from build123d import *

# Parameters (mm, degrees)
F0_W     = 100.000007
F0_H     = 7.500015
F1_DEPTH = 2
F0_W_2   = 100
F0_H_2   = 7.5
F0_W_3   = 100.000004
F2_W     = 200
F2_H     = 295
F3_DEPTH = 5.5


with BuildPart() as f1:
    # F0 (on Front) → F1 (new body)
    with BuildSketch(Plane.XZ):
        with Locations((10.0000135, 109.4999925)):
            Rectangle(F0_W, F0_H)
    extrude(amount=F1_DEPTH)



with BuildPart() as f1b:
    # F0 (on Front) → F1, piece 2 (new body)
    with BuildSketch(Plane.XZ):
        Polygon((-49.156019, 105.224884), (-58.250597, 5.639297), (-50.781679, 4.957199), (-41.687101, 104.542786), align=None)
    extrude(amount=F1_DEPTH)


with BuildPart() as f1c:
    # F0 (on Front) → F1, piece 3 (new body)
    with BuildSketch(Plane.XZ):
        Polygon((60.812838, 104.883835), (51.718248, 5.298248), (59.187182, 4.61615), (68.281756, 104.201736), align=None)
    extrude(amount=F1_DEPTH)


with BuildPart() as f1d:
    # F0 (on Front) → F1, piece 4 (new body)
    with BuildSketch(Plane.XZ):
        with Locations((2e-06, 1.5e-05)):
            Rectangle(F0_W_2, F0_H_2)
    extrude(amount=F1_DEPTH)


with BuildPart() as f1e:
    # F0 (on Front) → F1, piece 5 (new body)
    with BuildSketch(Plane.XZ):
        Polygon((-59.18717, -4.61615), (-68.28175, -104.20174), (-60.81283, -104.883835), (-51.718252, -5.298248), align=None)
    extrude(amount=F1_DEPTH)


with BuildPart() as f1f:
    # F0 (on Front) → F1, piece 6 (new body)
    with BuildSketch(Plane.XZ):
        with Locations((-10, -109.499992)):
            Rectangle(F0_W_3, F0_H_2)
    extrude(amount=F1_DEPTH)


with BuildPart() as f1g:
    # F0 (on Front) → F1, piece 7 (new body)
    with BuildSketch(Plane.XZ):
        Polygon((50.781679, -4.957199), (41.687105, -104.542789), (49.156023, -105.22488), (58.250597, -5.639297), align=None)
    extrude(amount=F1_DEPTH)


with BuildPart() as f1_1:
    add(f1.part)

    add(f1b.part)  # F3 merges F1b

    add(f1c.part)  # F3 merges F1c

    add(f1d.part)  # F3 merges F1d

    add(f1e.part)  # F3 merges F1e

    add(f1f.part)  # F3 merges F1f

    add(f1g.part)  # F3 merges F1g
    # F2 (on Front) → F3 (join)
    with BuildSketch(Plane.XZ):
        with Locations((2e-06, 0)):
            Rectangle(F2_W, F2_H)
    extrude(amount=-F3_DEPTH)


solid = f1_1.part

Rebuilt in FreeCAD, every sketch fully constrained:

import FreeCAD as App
import Part
import Sketcher
from FreeCAD import Vector
Q = App.Units.Quantity

doc = App.newDocument("Part")
body = doc.addObject("PartDesign::Body", "Body")

sketch1 = doc.addObject("Sketcher::SketchObject", "Sketch")
body.addObject(sketch1)
sketch1.AttachmentSupport = (doc.XZ_Plane, [""])
sketch1.MapMode = "FlatFace"
sketch1.addGeometry([
    Part.LineSegment(Vector(-40, 113, 0), Vector(-40, 106, 0)),
    Part.LineSegment(Vector(-40, 106, 0), Vector(60, 106, 0)),
    Part.LineSegment(Vector(60, 106, 0), Vector(60, 113, 0)),
    Part.LineSegment(Vector(60, 113, 0), Vector(-40, 113, 0)),
], False)
sketch1.addConstraint([
    Sketcher.Constraint("Coincident", 0, 2, 1, 1),
    Sketcher.Constraint("Coincident", 1, 2, 2, 1),
    Sketcher.Constraint("Coincident", 2, 2, 3, 1),
    Sketcher.Constraint("Coincident", 3, 2, 0, 1),
    Sketcher.Constraint("Vertical", 0),
    Sketcher.Constraint("Horizontal", 1),
    Sketcher.Constraint("Vertical", 2),
    Sketcher.Constraint("Horizontal", 3),
    Sketcher.Constraint("DistanceY", -1, 1, 2, 2, Q("113.25 mm")),
    Sketcher.Constraint("DistanceX", 1, 1, 1, 2, Q("100.000007 mm")),
    Sketcher.Constraint("DistanceY", 0, 2, 0, 1, Q("7.500015 mm")),
    Sketcher.Constraint("DistanceX", 0, 2, -1, 1, Q("39.99999 mm")),
])
pad1 = doc.addObject("PartDesign::Pad", "Pad")
body.addObject(pad1)
pad1.Profile = sketch1
pad1.Length = 2
body2 = doc.addObject("PartDesign::Body", "Body001")

sketch2 = doc.addObject("Sketcher::SketchObject", "Sketch001")
body2.addObject(sketch2)
sketch2.AttachmentSupport = (doc.getObject("XZ_Plane001"), [""])
sketch2.MapMode = "FlatFace"
sketch2.addGeometry([
    Part.LineSegment(Vector(-49, 105, 0), Vector(-58, 6, 0)),
    Part.LineSegment(Vector(-58, 6, 0), Vector(-51, 5, 0)),
    Part.LineSegment(Vector(-51, 5, 0), Vector(-42, 105, 0)),
    Part.LineSegment(Vector(-42, 105, 0), Vector(-49, 105, 0)),
], False)
sketch2.addConstraint([
    Sketcher.Constraint("Coincident", 0, 2, 1, 1),
    Sketcher.Constraint("Coincident", 1, 2, 2, 1),
    Sketcher.Constraint("Coincident", 2, 2, 3, 1),
    Sketcher.Constraint("Coincident", 3, 2, 0, 1),
    Sketcher.Constraint("Perpendicular", 0, 1),
    Sketcher.Constraint("Perpendicular", 1, 2),
    Sketcher.Constraint("Perpendicular", 2, 3),
    Sketcher.Constraint("Distance", 1, Q("7.5 mm")),
    Sketcher.Constraint("DistanceY", -1, 1, 1, 2, Q("4.957199 mm")),
    Sketcher.Constraint("DistanceX", 2, 2, -1, 1, Q("41.687101 mm")),
    Sketcher.Constraint("DistanceX", 1, 2, -1, 1, Q("50.781679 mm")),
    Sketcher.Constraint("DistanceY", 0, 2, 2, 2, Q("98.903489 mm")),
])
pad2 = doc.addObject("PartDesign::Pad", "Pad001")
body2.addObject(pad2)
pad2.Profile = sketch2
pad2.Length = 2
body3 = doc.addObject("PartDesign::Body", "Body002")

sketch3 = doc.addObject("Sketcher::SketchObject", "Sketch002")
body3.addObject(sketch3)
sketch3.AttachmentSupport = (doc.getObject("XZ_Plane002"), [""])
sketch3.MapMode = "FlatFace"
sketch3.addGeometry([
    Part.LineSegment(Vector(60.812838, 104.883835, 0), Vector(51.718248, 5.298248, 0)),
    Part.LineSegment(Vector(51.718248, 5.298248, 0), Vector(59.187182, 4.61615, 0)),
    Part.LineSegment(Vector(59.187182, 4.61615, 0), Vector(68.281756, 104.201736, 0)),
    Part.LineSegment(Vector(68.281756, 104.201736, 0), Vector(60.812838, 104.883835, 0)),
], False)
sketch3.addConstraint([
    Sketcher.Constraint("Coincident", 0, 2, 1, 1),
    Sketcher.Constraint("Coincident", 1, 2, 2, 1),
    Sketcher.Constraint("Coincident", 2, 2, 3, 1),
    Sketcher.Constraint("Coincident", 3, 2, 0, 1),
    Sketcher.Constraint("Distance", 2, Q("100.000001 mm")),
    Sketcher.Constraint("Distance", 3, Q("7.5 mm")),
    Sketcher.Constraint("DistanceY", 2, 2, 3, 2, Q("0.682099 mm")),
    Sketcher.Constraint("DistanceX", -1, 1, 0, 2, Q("51.718248 mm")),
    Sketcher.Constraint("DistanceY", -1, 1, 1, 2, Q("4.61615 mm")),
    Sketcher.Constraint("DistanceX", 0, 2, 3, 2, Q("9.09459 mm")),
    Sketcher.Constraint("Distance", 0, Q("100.000004 mm")),
    Sketcher.Constraint("Distance", 1, Q("7.500016 mm")),
])
pad3 = doc.addObject("PartDesign::Pad", "Pad002")
body3.addObject(pad3)
pad3.Profile = sketch3
pad3.Length = 2
body4 = doc.addObject("PartDesign::Body", "Body003")

sketch4 = doc.addObject("Sketcher::SketchObject", "Sketch003")
body4.addObject(sketch4)
sketch4.AttachmentSupport = (doc.getObject("XZ_Plane003"), [""])
sketch4.MapMode = "FlatFace"
sketch4.addGeometry([
    Part.LineSegment(Vector(-50, 4, 0), Vector(-50, -4, 0)),
    Part.LineSegment(Vector(-50, -4, 0), Vector(50, -4, 0)),
    Part.LineSegment(Vector(50, -4, 0), Vector(50, 4, 0)),
    Part.LineSegment(Vector(50, 4, 0), Vector(-50, 4, 0)),
], False)
sketch4.addConstraint([
    Sketcher.Constraint("Coincident", 0, 2, 1, 1),
    Sketcher.Constraint("Coincident", 1, 2, 2, 1),
    Sketcher.Constraint("Coincident", 2, 2, 3, 1),
    Sketcher.Constraint("Coincident", 3, 2, 0, 1),
    Sketcher.Constraint("Vertical", 0),
    Sketcher.Constraint("Horizontal", 1),
    Sketcher.Constraint("Vertical", 2),
    Sketcher.Constraint("Horizontal", 3),
    Sketcher.Constraint("DistanceX", 1, 1, 1, 2, Q("100 mm")),
    Sketcher.Constraint("DistanceY", 0, 2, 0, 1, Q("7.5 mm")),
    Sketcher.Constraint("DistanceX", 0, 2, -1, 1, Q("49.999998 mm")),
    Sketcher.Constraint("DistanceY", 0, 2, -1, 1, Q("3.749985 mm")),
])
pad4 = doc.addObject("PartDesign::Pad", "Pad003")
body4.addObject(pad4)
pad4.Profile = sketch4
pad4.Length = 2
body5 = doc.addObject("PartDesign::Body", "Body004")

sketch5 = doc.addObject("Sketcher::SketchObject", "Sketch004")
body5.addObject(sketch5)
sketch5.AttachmentSupport = (doc.getObject("XZ_Plane004"), [""])
sketch5.MapMode = "FlatFace"
sketch5.addGeometry([
    Part.LineSegment(Vector(-59, -5, 0), Vector(-68, -104, 0)),
    Part.LineSegment(Vector(-68, -104, 0), Vector(-61, -105, 0)),
    Part.LineSegment(Vector(-61, -105, 0), Vector(-52, -5, 0)),
    Part.LineSegment(Vector(-52, -5, 0), Vector(-59, -5, 0)),
], False)
sketch5.addConstraint([
    Sketcher.Constraint("Coincident", 0, 2, 1, 1),
    Sketcher.Constraint("Coincident", 1, 2, 2, 1),
    Sketcher.Constraint("Coincident", 2, 2, 3, 1),
    Sketcher.Constraint("Coincident", 3, 2, 0, 1),
    Sketcher.Constraint("Perpendicular", 0, 1),
    Sketcher.Constraint("Perpendicular", 1, 2),
    Sketcher.Constraint("Perpendicular", 2, 3),
    Sketcher.Constraint("Distance", 1, Q("7.500001 mm")),
    Sketcher.Constraint("DistanceX", 0, 2, 2, 2, Q("16.563498 mm")),
    Sketcher.Constraint("DistanceX", 0, 2, -1, 1, Q("68.28175 mm")),
    Sketcher.Constraint("DistanceY", 0, 2, -1, 1, Q("104.20174 mm")),
    Sketcher.Constraint("DistanceY", 3, 2, -1, 1, Q("4.61615 mm")),
])
pad5 = doc.addObject("PartDesign::Pad", "Pad004")
body5.addObject(pad5)
pad5.Profile = sketch5
pad5.Length = 2
body6 = doc.addObject("PartDesign::Body", "Body005")

sketch6 = doc.addObject("Sketcher::SketchObject", "Sketch005")
body6.addObject(sketch6)
sketch6.AttachmentSupport = (doc.getObject("XZ_Plane005"), [""])
sketch6.MapMode = "FlatFace"
sketch6.addGeometry([
    Part.LineSegment(Vector(-60, -106, 0), Vector(-60, -113, 0)),
    Part.LineSegment(Vector(-60, -113, 0), Vector(40, -113, 0)),
    Part.LineSegment(Vector(40, -113, 0), Vector(40, -106, 0)),
    Part.LineSegment(Vector(40, -106, 0), Vector(-60, -106, 0)),
], False)
sketch6.addConstraint([
    Sketcher.Constraint("Coincident", 0, 2, 1, 1),
    Sketcher.Constraint("Coincident", 1, 2, 2, 1),
    Sketcher.Constraint("Coincident", 2, 2, 3, 1),
    Sketcher.Constraint("Coincident", 3, 2, 0, 1),
    Sketcher.Constraint("Vertical", 0),
    Sketcher.Constraint("Horizontal", 1),
    Sketcher.Constraint("Vertical", 2),
    Sketcher.Constraint("Horizontal", 3),
    Sketcher.Constraint("DistanceY", 0, 2, 0, 1, Q("7.5 mm")),
    Sketcher.Constraint("DistanceX", 1, 1, 1, 2, Q("100.000004 mm")),
    Sketcher.Constraint("DistanceX", 0, 2, -1, 1, Q("60.000002 mm")),
    Sketcher.Constraint("DistanceY", 0, 2, -1, 1, Q("113.249992 mm")),
])
pad6 = doc.addObject("PartDesign::Pad", "Pad005")
body6.addObject(pad6)
pad6.Profile = sketch6
pad6.Length = 2
body7 = doc.addObject("PartDesign::Body", "Body006")

sketch7 = doc.addObject("Sketcher::SketchObject", "Sketch006")
body7.addObject(sketch7)
sketch7.AttachmentSupport = (doc.getObject("XZ_Plane006"), [""])
sketch7.MapMode = "FlatFace"
sketch7.addGeometry([
    Part.LineSegment(Vector(50.781679, -4.957199, 0), Vector(41.687105, -104.542789, 0)),
    Part.LineSegment(Vector(41.687105, -104.542789, 0), Vector(49.156023, -105.22488, 0)),
    Part.LineSegment(Vector(49.156023, -105.22488, 0), Vector(58.250597, -5.639297, 0)),
    Part.LineSegment(Vector(58.250597, -5.639297, 0), Vector(50.781679, -4.957199, 0)),
], False)
sketch7.addConstraint([
    Sketcher.Constraint("Coincident", 0, 2, 1, 1),
    Sketcher.Constraint("Coincident", 1, 2, 2, 1),
    Sketcher.Constraint("Coincident", 2, 2, 3, 1),
    Sketcher.Constraint("Coincident", 3, 2, 0, 1),
    Sketcher.Constraint("Distance", 2, Q("99.999998 mm")),
    Sketcher.Constraint("Distance", 1, Q("7.499999 mm")),
    Sketcher.Constraint("Distance", 3, Q("7.5 mm")),
    Sketcher.Constraint("DistanceY", 3, 2, -1, 1, Q("4.957199 mm")),
    Sketcher.Constraint("DistanceY", 0, 2, -1, 1, Q("104.542789 mm")),
    Sketcher.Constraint("DistanceY", 1, 2, -1, 1, Q("105.22488 mm")),
    Sketcher.Constraint("DistanceX", -1, 1, 3, 2, Q("50.781679 mm")),
    Sketcher.Constraint("DistanceX", 0, 2, 2, 2, Q("16.563492 mm")),
])
pad7 = doc.addObject("PartDesign::Pad", "Pad006")
body7.addObject(pad7)
pad7.Profile = sketch7
pad7.Length = 2
body.AllowCompound = True
doc.recompute()

boolean = doc.addObject("PartDesign::Boolean", "Boolean")
body.addObject(boolean)
boolean.Type = "Fuse"
boolean.addObjects([body2])
doc.recompute()

boolean2 = doc.addObject("PartDesign::Boolean", "Boolean001")
body.addObject(boolean2)
boolean2.Type = "Fuse"
boolean2.addObjects([body3])
doc.recompute()

boolean3 = doc.addObject("PartDesign::Boolean", "Boolean002")
body.addObject(boolean3)
boolean3.Type = "Fuse"
boolean3.addObjects([body4])
doc.recompute()

boolean4 = doc.addObject("PartDesign::Boolean", "Boolean003")
body.addObject(boolean4)
boolean4.Type = "Fuse"
boolean4.addObjects([body5])
doc.recompute()

boolean5 = doc.addObject("PartDesign::Boolean", "Boolean004")
body.addObject(boolean5)
boolean5.Type = "Fuse"
boolean5.addObjects([body6])
doc.recompute()

boolean6 = doc.addObject("PartDesign::Boolean", "Boolean005")
body.addObject(boolean6)
boolean6.Type = "Fuse"
boolean6.addObjects([body7])

sketch8 = doc.addObject("Sketcher::SketchObject", "Sketch007")
body.addObject(sketch8)
sketch8.AttachmentSupport = (doc.XZ_Plane, [""])
sketch8.MapMode = "FlatFace"
sketch8.addGeometry([
    Part.LineSegment(Vector(-100, 148, 0), Vector(-100, -148, 0)),
    Part.LineSegment(Vector(-100, -148, 0), Vector(100, -148, 0)),
    Part.LineSegment(Vector(100, -148, 0), Vector(100, 148, 0)),
    Part.LineSegment(Vector(100, 148, 0), Vector(-100, 148, 0)),
], False)
sketch8.addConstraint([
    Sketcher.Constraint("Coincident", 0, 2, 1, 1),
    Sketcher.Constraint("Coincident", 1, 2, 2, 1),
    Sketcher.Constraint("Coincident", 2, 2, 3, 1),
    Sketcher.Constraint("Coincident", 3, 2, 0, 1),
    Sketcher.Constraint("Vertical", 0),
    Sketcher.Constraint("Horizontal", 1),
    Sketcher.Constraint("Vertical", 2),
    Sketcher.Constraint("Horizontal", 3),
    Sketcher.Constraint("Symmetric", 0, 2, 2, 2, -1, 1),
    Sketcher.Constraint("DistanceX", 1, 1, 1, 2, Q("200 mm")),
    Sketcher.Constraint("DistanceY", 0, 2, 0, 1, Q("295 mm")),
])
pad8 = doc.addObject("PartDesign::Pad", "Pad007")
body.addObject(pad8)
pad8.Profile = sketch8
pad8.Length = 5.5
pad8.Reversed = True

doc.recompute()
